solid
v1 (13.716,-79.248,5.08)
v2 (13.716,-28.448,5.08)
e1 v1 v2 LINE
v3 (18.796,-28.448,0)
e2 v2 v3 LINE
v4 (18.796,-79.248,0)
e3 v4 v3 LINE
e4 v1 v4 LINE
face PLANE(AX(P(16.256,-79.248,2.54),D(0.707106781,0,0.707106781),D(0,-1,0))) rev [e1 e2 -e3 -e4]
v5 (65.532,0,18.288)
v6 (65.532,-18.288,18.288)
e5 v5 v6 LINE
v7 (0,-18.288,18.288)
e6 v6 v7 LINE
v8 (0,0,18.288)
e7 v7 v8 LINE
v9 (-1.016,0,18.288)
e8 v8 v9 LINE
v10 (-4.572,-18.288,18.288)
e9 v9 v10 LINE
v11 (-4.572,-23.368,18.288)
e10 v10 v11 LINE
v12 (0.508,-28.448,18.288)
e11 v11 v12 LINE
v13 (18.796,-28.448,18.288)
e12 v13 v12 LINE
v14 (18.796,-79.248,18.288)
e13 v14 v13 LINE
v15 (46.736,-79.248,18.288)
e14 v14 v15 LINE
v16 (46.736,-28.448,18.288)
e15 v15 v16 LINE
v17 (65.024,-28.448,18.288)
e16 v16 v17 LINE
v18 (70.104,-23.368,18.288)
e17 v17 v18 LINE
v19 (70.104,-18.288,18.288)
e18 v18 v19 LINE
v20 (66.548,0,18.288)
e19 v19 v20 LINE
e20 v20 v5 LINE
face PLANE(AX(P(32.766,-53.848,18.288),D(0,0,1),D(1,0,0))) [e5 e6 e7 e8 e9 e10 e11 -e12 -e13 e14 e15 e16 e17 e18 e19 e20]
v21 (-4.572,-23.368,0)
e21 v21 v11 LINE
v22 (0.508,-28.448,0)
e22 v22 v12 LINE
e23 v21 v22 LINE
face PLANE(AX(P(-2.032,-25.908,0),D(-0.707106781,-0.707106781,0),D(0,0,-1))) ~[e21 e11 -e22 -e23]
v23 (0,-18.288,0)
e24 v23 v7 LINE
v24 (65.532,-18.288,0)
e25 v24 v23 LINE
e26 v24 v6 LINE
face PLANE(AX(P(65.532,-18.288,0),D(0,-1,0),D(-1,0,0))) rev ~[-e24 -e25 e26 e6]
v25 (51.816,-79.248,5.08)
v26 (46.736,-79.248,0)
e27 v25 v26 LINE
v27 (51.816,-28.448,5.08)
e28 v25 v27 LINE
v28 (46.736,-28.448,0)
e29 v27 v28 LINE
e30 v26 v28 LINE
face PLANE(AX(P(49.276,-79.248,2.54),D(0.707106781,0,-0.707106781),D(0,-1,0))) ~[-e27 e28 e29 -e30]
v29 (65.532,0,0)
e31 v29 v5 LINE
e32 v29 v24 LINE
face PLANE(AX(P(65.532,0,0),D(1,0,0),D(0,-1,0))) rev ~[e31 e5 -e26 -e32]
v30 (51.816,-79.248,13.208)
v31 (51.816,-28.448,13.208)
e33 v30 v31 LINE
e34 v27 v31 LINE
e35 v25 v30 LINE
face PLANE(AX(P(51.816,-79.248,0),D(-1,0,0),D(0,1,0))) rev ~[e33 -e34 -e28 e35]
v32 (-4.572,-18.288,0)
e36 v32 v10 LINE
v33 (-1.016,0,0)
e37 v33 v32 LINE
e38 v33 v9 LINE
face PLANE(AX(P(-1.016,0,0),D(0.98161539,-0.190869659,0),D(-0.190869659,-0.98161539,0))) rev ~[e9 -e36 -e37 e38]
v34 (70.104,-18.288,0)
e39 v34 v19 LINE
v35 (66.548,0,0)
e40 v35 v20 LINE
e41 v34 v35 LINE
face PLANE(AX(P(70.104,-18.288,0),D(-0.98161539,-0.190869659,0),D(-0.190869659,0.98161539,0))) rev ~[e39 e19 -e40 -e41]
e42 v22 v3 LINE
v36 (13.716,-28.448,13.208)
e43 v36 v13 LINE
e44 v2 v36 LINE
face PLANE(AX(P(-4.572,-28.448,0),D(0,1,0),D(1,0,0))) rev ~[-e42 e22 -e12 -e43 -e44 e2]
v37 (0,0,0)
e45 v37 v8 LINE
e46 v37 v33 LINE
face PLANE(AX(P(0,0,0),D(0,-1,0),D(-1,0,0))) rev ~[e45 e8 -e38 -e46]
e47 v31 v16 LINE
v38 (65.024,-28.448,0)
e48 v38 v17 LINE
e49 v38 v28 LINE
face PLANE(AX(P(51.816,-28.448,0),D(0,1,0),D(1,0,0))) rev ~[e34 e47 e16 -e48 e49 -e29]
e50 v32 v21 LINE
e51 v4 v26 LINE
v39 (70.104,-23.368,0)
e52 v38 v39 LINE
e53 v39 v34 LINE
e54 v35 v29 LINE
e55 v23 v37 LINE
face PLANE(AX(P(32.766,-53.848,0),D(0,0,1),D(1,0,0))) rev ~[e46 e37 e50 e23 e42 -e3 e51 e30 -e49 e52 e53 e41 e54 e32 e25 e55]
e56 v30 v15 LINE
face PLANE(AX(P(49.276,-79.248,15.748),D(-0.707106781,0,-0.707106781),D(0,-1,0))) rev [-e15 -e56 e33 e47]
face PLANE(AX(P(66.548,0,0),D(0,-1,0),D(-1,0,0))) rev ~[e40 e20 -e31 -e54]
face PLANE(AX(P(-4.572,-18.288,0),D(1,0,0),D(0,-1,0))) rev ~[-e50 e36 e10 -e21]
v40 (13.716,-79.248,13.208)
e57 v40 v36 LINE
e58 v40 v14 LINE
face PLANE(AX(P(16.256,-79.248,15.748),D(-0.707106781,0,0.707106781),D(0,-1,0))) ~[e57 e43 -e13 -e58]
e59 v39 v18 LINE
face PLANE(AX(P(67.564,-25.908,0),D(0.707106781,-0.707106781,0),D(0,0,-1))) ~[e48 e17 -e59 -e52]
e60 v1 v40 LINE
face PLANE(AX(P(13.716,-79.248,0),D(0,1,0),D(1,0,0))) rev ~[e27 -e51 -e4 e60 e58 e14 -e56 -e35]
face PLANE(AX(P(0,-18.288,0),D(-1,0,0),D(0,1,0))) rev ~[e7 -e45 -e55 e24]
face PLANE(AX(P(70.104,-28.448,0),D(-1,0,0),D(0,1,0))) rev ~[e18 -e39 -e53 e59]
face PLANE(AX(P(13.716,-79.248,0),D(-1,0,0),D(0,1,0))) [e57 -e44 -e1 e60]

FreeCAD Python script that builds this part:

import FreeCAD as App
import Part
import Sketcher
Q = App.Units.Quantity


def edges_at(feature, points):
    """Names of the edges that pass closest to the given points."""
    edges = feature.Shape.Edges
    near = lambda p: min(range(len(edges)), key=lambda i: edges[i].distToShape(Part.Vertex(*p))[0])
    return sorted({f"Edge{near(p) + 1}" for p in points})

doc = App.newDocument("Part")
body = doc.addObject("PartDesign::Body", "Body")

sketch1 = doc.addObject("Sketcher::SketchObject", "Sketch")
body.addObject(sketch1)
sketch1.AttachmentSupport = (doc.XY_Plane, [""])
sketch1.MapMode = "FlatFace"
sketch1.addGeometry(Part.LineSegment(App.Vector(13.716, -28.448, 0), App.Vector(13.716, -79.248, 0)), False)
sketch1.addGeometry(Part.LineSegment(App.Vector(13.716, -79.248, 0), App.Vector(51.816, -79.248, 0)), False)
sketch1.addGeometry(Part.LineSegment(App.Vector(51.816, -79.248, 0), App.Vector(51.816, -28.448, 0)), False)
sketch1.addGeometry(Part.LineSegment(App.Vector(51.816, -28.448, 0), App.Vector(70.104, -28.448, 0)), False)
sketch1.addGeometry(Part.LineSegment(App.Vector(70.104, -28.448, 0), App.Vector(70.104, -18.288, 0)), False)
sketch1.addGeometry(Part.LineSegment(App.Vector(70.104, -18.288, 0), App.Vector(66.548, 0, 0)), False)
sketch1.addGeometry(Part.LineSegment(App.Vector(66.548, 0, 0), App.Vector(65.532, 0, 0)), False)
sketch1.addGeometry(Part.LineSegment(App.Vector(65.532, 0, 0), App.Vector(65.532, -18.288, 0)), False)
sketch1.addGeometry(Part.LineSegment(App.Vector(65.532, -18.288, 0), App.Vector(0, -18.288, 0)), False)
sketch1.addGeometry(Part.LineSegment(App.Vector(0, -18.288, 0), App.Vector(0, 0, 0)), False)
sketch1.addGeometry(Part.LineSegment(App.Vector(0, 0, 0), App.Vector(-1.016, 0, 0)), False)
sketch1.addGeometry(Part.LineSegment(App.Vector(-1.016, 0, 0), App.Vector(-4.572, -18.288, 0)), False)
sketch1.addGeometry(Part.LineSegment(App.Vector(-4.572, -18.288, 0), App.Vector(-4.572, -28.448, 0)), False)
sketch1.addGeometry(Part.LineSegment(App.Vector(-4.572, -28.448, 0), App.Vector(13.716, -28.448, 0)), False)
sketch1.addConstraint(Sketcher.Constraint("Coincident", 0, 2, 1, 1))
sketch1.addConstraint(Sketcher.Constraint("Coincident", 1, 2, 2, 1))
sketch1.addConstraint(Sketcher.Constraint("Coincident", 2, 2, 3, 1))
sketch1.addConstraint(Sketcher.Constraint("Coincident", 3, 2, 4, 1))
sketch1.addConstraint(Sketcher.Constraint("Coincident", 4, 2, 5, 1))
sketch1.addConstraint(Sketcher.Constraint("Coincident", 5, 2, 6, 1))
sketch1.addConstraint(Sketcher.Constraint("Coincident", 6, 2, 7, 1))
sketch1.addConstraint(Sketcher.Constraint("Coincident", 7, 2, 8, 1))
sketch1.addConstraint(Sketcher.Constraint("Coincident", 8, 2, 9, 1))
sketch1.addConstraint(Sketcher.Constraint("Coincident", 9, 2, 10, 1))
sketch1.addConstraint(Sketcher.Constraint("Coincident", 10, 2, 11, 1))
sketch1.addConstraint(Sketcher.Constraint("Coincident", 11, 2, 12, 1))
sketch1.addConstraint(Sketcher.Constraint("Coincident", 12, 2, 13, 1))
sketch1.addConstraint(Sketcher.Constraint("Coincident", 13, 2, 0, 1))
sketch1.addConstraint(Sketcher.Constraint("Vertical", 0))
sketch1.addConstraint(Sketcher.Constraint("Horizontal", 1))
sketch1.addConstraint(Sketcher.Constraint("Vertical", 2))
sketch1.addConstraint(Sketcher.Constraint("Horizontal", 3))
sketch1.addConstraint(Sketcher.Constraint("Vertical", 4))
sketch1.addConstraint(Sketcher.Constraint("Horizontal", 6))
sketch1.addConstraint(Sketcher.Constraint("Vertical", 7))
sketch1.addConstraint(Sketcher.Constraint("Horizontal", 8))
sketch1.addConstraint(Sketcher.Constraint("Vertical", 9))
sketch1.addConstraint(Sketcher.Constraint("Horizontal", 10))
sketch1.addConstraint(Sketcher.Constraint("Vertical", 12))
sketch1.addConstraint(Sketcher.Constraint("Horizontal", 13))
sketch1.addConstraint(Sketcher.Constraint("Coincident", 9, 2, -1, 1))
sketch1.addConstraint(Sketcher.Constraint("PointOnObject", 5, 2, -1))
sketch1.addConstraint(Sketcher.Constraint("Horizontal", 4, 2, 7, 2))
sketch1.addConstraint(Sketcher.Constraint("Horizontal", 8, 2, 11, 2))
sketch1.addConstraint(Sketcher.Constraint("Horizontal", 3, 2, 12, 2))
sketch1.addConstraint(Sketcher.Constraint("Equal", 6, 10))
sketch1.addConstraint(Sketcher.Constraint("Equal", 3, 13))
sketch1.addConstraint(Sketcher.Constraint("Equal", 13, 7))
sketch1.addConstraint(Sketcher.Constraint("Equal", 5, 11))
sketch1.addConstraint(Sketcher.Constraint("DistanceY", 0, 2, 0, 1, Q("2 in")))
sketch1.addConstraint(Sketcher.Constraint("DistanceX", 1, 1, 1, 2, Q("1.5 in")))
sketch1.addConstraint(Sketcher.Constraint("DistanceY", 4, 1, 4, 2, Q("0.4 in")))
sketch1.addConstraint(Sketcher.Constraint("DistanceX", 3, 1, 3, 2, Q("0.72 in")))
sketch1.addConstraint(Sketcher.Constraint("DistanceX", 6, 2, 6, 1, Q("0.04 in")))
sketch1.addConstraint(Sketcher.Constraint("DistanceX", 8, 2, 8, 1, Q("2.58 in")))
pad1 = doc.addObject("PartDesign::Pad", "Pad")
body.addObject(pad1)
pad1.Profile = sketch1
pad1.Length = Q("0.72 in")
doc.recompute()

chamfer = doc.addObject("PartDesign::Chamfer", "Chamfer")
body.addObject(chamfer)
chamfer.Base = (pad1, edges_at(pad1, [
    (13.716, -53.848, 18.288),
    (51.816, -53.848, 18.288),
    (51.816, -53.848, 0),
    (13.716, -53.848, 0),
    (-4.572, -28.448, 9.144),
    (70.104, -28.448, 9.144),
]))
chamfer.Size = Q("0.2 in")

doc.recompute()
